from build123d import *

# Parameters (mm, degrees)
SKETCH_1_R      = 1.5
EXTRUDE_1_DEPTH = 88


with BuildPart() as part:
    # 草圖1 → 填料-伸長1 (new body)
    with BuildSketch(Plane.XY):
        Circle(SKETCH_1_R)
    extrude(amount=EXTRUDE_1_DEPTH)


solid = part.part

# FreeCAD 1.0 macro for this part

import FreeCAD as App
import Part
import Sketcher
from FreeCAD import Vector

doc = App.newDocument("Part")
params = doc.addObject("Spreadsheet::Sheet", "Params")
for row, (alias, value) in enumerate([
    ("sketch1_diameter", "3 mm"),
    ("pad1_length", "88 mm"),
], start=1):
    params.set(f"A{row}", alias)
    params.set(f"B{row}", "=" + value)
    params.setAlias(f"B{row}", alias)

body = doc.addObject("PartDesign::Body", "Body")

# Sketch on XY plane
sketch1 = body.newObject("Sketcher::SketchObject", "Sketch")
sketch1.AttachmentSupport = (doc.getObject("XY_Plane"), [""])
sketch1.MapMode = "FlatFace"
sketch1.addGeometry(Part.Circle(Vector(0, 0, 0), Vector(0, 0, 1), 1.5), False)
sketch1.addConstraint(Sketcher.Constraint("Coincident", 0, 3, -1, 1))
sketch1.addConstraint(Sketcher.Constraint("Diameter", 0, 3.0))
sketch1.setExpression("Constraints[1]", "Params.sketch1_diameter")
pad1 = body.newObject("PartDesign::Pad", "Pad")
pad1.Profile = sketch1
pad1.setExpression("Length", "Params.pad1_length")

doc.recompute()
